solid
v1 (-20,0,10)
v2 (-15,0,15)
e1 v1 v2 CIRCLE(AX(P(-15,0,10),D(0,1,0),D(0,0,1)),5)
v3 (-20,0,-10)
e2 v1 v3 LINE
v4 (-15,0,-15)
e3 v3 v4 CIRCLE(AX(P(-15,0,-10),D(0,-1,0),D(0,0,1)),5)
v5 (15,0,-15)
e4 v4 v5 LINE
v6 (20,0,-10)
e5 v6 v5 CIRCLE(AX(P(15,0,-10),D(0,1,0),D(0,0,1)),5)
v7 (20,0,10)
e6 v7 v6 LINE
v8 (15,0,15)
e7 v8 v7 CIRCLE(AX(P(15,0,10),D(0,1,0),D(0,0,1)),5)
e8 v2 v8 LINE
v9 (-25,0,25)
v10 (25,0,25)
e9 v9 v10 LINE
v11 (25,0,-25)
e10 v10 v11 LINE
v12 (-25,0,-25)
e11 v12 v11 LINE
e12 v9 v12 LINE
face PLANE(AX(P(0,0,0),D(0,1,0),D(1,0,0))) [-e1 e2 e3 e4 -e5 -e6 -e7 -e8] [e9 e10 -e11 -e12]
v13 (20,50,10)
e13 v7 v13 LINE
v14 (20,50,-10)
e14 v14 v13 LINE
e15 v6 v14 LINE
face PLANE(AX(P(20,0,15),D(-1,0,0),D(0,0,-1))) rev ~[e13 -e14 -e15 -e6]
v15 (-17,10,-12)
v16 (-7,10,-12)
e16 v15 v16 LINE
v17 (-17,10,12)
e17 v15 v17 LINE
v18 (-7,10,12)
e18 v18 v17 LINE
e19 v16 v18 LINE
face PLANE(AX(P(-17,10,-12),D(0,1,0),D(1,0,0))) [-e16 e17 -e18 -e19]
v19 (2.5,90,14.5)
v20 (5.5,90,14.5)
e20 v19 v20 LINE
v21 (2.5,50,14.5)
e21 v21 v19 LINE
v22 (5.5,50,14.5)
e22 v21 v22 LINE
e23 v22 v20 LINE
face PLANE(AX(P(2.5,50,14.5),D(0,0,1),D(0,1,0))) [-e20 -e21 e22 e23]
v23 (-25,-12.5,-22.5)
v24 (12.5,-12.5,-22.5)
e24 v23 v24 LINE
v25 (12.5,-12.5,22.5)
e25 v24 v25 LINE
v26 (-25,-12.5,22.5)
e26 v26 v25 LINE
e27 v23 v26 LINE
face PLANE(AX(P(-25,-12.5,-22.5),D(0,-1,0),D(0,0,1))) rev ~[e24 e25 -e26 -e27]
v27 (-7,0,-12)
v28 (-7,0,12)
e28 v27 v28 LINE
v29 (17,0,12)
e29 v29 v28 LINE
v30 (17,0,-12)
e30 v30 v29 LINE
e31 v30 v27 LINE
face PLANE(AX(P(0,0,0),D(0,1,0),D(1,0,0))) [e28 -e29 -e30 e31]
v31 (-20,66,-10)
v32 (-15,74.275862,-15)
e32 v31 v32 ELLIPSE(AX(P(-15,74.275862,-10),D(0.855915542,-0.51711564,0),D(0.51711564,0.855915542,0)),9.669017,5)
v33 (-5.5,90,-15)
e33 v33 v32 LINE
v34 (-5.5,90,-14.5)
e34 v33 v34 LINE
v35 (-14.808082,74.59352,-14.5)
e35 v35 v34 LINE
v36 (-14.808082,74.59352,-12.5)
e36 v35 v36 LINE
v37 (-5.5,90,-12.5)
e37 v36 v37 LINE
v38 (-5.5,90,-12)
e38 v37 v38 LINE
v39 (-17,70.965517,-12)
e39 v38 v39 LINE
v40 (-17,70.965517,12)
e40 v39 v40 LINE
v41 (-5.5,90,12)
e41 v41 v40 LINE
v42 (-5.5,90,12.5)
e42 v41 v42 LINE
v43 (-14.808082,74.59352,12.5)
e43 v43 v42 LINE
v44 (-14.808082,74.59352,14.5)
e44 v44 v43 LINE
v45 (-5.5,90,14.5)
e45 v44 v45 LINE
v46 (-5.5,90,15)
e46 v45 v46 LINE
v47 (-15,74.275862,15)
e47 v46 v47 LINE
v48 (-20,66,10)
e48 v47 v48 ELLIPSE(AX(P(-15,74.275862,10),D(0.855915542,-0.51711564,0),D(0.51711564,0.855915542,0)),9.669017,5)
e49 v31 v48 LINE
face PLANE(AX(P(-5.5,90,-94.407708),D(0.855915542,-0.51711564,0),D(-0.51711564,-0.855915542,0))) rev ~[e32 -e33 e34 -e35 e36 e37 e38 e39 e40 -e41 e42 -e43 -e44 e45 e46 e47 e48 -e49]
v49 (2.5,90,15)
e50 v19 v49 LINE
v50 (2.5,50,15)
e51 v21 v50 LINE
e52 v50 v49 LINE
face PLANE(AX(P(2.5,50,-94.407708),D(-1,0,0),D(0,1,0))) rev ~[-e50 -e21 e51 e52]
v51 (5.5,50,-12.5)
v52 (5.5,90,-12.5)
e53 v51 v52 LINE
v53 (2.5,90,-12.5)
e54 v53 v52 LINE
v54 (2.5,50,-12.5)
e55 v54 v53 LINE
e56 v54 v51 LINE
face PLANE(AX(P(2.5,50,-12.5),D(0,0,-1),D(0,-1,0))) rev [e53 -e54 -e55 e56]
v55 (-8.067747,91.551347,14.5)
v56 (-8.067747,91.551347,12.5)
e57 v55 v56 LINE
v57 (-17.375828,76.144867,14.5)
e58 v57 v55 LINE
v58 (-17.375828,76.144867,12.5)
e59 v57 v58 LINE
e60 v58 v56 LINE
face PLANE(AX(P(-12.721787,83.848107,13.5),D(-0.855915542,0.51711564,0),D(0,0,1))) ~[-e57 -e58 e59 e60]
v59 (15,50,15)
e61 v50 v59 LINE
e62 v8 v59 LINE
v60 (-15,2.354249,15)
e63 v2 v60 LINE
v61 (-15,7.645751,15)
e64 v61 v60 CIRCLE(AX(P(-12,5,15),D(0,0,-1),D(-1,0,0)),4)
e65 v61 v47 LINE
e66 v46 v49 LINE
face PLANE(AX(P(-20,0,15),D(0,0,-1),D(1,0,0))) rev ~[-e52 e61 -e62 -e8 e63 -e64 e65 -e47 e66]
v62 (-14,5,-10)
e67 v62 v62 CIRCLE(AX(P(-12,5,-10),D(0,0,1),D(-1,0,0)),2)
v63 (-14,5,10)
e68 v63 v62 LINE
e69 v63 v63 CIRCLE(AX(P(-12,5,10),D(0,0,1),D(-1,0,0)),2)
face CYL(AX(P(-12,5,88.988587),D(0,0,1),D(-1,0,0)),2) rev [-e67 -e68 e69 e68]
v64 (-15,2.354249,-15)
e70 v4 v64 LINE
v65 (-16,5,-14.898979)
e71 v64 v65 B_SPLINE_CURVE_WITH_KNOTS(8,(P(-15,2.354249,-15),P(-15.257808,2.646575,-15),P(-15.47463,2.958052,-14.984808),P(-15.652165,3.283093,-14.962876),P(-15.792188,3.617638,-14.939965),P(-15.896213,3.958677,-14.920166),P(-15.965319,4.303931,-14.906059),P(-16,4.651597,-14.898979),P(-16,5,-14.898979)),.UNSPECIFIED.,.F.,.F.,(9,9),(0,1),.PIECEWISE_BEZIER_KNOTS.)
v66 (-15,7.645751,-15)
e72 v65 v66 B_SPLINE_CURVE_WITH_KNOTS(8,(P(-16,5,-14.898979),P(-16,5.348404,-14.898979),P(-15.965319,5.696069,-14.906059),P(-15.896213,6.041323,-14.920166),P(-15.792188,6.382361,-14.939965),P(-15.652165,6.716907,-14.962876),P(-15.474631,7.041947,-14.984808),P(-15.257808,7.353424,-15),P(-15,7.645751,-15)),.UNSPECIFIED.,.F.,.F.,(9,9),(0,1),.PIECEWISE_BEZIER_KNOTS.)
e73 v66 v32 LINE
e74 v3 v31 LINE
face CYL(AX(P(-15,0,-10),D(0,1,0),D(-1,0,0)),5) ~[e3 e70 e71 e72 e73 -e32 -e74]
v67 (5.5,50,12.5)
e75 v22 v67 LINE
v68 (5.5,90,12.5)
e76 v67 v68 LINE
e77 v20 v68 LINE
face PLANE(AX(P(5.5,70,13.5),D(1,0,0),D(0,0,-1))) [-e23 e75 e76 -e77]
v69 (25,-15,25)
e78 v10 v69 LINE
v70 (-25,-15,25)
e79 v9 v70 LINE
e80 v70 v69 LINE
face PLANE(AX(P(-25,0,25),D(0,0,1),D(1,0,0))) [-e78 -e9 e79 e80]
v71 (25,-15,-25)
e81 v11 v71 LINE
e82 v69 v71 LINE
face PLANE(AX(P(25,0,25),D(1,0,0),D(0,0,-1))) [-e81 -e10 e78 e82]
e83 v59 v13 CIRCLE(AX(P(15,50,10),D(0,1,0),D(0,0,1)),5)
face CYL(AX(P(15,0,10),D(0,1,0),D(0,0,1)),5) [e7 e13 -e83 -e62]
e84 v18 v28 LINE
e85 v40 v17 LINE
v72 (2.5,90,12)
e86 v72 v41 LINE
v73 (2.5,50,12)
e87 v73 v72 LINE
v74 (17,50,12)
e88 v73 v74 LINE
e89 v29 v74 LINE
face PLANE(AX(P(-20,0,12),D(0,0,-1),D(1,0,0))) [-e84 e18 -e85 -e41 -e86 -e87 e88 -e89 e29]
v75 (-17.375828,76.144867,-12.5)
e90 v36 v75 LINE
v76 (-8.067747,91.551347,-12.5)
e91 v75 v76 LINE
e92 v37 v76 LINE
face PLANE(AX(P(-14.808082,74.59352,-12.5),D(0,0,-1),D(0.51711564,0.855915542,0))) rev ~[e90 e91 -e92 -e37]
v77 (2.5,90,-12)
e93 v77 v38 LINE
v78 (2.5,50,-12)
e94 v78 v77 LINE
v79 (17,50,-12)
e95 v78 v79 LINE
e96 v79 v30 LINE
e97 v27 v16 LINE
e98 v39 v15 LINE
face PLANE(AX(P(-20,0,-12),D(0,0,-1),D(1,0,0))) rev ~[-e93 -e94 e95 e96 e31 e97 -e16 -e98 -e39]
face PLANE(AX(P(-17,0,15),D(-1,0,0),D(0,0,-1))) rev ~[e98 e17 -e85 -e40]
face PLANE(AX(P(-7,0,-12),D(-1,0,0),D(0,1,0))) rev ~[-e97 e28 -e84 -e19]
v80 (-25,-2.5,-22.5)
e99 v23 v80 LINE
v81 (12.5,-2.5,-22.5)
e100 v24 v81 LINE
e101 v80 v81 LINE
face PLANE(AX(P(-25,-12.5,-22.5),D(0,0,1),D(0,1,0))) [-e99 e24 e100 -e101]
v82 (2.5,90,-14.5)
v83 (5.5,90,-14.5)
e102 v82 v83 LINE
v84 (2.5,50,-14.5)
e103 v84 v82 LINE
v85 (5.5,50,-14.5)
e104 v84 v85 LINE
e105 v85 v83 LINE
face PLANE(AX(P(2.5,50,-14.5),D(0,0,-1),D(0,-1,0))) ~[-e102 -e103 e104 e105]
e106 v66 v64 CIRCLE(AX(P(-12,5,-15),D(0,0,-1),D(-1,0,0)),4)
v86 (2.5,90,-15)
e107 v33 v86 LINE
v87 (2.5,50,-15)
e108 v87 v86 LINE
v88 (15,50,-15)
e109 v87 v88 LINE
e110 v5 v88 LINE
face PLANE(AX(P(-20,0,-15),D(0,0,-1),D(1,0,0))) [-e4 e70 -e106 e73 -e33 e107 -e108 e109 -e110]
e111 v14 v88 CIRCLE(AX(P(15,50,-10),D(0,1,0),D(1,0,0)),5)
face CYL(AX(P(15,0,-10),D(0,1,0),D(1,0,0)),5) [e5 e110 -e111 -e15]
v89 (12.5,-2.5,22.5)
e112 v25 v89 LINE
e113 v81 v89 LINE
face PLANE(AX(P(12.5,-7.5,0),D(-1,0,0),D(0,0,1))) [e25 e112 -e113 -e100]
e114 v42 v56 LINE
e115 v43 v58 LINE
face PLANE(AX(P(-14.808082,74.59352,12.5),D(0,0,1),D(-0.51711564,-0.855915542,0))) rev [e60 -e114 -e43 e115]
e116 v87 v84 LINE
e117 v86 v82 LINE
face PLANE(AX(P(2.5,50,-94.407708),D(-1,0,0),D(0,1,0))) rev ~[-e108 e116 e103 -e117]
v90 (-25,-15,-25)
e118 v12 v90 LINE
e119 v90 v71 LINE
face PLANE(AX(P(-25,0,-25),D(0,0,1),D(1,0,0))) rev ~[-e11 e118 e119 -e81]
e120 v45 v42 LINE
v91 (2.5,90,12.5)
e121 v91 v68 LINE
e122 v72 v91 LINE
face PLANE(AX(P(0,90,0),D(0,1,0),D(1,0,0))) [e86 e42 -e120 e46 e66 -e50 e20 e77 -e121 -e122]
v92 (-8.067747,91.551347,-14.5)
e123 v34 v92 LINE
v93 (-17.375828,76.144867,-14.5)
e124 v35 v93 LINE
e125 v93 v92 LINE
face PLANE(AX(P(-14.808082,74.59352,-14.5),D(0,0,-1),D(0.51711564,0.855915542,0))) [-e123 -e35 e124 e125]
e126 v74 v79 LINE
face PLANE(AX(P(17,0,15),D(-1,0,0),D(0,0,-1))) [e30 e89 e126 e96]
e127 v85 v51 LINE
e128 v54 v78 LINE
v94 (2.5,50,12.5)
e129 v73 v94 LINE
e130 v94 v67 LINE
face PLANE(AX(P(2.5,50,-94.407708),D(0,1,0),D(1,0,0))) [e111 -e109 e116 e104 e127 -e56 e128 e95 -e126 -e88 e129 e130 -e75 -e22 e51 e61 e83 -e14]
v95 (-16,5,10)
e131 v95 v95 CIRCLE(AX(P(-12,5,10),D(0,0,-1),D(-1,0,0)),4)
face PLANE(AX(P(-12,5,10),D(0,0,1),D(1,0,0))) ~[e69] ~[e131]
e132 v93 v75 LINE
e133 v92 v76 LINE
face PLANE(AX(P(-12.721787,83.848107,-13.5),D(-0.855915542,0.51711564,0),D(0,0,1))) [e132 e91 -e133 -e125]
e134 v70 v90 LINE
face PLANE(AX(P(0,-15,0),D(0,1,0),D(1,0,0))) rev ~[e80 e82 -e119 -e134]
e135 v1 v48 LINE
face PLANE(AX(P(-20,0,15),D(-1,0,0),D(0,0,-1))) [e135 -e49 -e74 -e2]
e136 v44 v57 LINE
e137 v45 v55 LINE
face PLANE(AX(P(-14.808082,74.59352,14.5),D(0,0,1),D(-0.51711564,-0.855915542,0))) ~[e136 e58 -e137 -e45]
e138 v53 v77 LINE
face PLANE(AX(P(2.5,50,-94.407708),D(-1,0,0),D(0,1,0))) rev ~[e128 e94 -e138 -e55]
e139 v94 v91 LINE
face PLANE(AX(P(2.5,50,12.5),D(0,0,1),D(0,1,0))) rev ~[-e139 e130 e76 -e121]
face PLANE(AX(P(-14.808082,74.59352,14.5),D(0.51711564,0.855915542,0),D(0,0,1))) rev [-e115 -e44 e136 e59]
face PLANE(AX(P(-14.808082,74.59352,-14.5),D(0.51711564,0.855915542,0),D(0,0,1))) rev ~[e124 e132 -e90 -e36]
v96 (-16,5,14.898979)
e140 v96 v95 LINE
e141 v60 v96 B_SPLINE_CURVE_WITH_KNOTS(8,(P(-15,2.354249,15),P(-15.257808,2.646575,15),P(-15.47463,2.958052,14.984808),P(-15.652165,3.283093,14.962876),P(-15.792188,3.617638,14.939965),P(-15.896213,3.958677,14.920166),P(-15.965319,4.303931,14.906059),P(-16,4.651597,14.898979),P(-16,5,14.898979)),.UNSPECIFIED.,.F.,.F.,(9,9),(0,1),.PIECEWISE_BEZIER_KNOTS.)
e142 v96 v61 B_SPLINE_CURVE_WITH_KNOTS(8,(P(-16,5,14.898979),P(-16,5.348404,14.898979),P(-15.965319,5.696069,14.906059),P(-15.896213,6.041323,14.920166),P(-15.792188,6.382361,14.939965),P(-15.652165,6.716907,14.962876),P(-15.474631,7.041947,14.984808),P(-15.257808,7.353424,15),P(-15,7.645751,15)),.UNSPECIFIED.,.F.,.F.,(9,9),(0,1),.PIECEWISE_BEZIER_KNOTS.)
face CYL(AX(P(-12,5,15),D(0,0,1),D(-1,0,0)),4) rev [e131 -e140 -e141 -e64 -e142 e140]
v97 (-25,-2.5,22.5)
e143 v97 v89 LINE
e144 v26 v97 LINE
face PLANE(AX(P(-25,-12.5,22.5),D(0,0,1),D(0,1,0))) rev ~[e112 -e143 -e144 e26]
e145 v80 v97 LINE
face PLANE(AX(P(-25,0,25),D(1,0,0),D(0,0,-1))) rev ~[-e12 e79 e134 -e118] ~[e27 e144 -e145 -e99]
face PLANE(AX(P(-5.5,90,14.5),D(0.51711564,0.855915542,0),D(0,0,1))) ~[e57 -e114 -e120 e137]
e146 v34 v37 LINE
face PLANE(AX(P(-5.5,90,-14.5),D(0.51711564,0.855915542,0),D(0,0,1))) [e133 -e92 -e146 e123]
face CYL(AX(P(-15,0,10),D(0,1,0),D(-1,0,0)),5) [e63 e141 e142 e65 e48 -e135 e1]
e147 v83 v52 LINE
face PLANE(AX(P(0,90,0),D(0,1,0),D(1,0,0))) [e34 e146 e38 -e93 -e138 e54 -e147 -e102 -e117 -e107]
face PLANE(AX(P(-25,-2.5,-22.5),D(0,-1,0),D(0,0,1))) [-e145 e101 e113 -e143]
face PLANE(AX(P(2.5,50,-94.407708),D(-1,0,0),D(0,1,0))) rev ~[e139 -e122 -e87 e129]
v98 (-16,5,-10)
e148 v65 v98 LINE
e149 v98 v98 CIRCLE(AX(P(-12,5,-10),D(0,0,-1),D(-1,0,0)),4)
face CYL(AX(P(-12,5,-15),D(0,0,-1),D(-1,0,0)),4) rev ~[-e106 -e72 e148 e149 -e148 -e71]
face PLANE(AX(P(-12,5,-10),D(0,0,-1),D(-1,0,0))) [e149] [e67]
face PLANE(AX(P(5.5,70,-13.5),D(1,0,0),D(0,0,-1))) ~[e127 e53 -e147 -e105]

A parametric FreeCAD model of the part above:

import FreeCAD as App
import Part
import Sketcher

V = App.Vector
Q = App.Units.Quantity


def edges_at(feature, points):
    """Names of the edges that pass closest to the given points."""
    edges = feature.Shape.Edges
    near = lambda p: min(range(len(edges)), key=lambda i: edges[i].distToShape(Part.Vertex(*p))[0])
    return sorted({f"Edge{near(p) + 1}" for p in points})


def faces_at(feature, points):
    """Names of the faces that lie closest to the given points."""
    faces = feature.Shape.Faces
    near = lambda p: min(range(len(faces)), key=lambda i: faces[i].distToShape(Part.Vertex(*p))[0])
    return sorted({f"Face{near(p) + 1}" for p in points})


def add_polygon(sketch, points):
    """Adds a closed chain of lines whose ends are joined by coincident constraints."""
    first, n = sketch.GeometryCount, len(points)
    for a, b in zip(points, points[1:] + points[:1]):
        sketch.addGeometry(Part.LineSegment(App.Vector(*a, 0), App.Vector(*b, 0)), False)
    for i in range(n):
        sketch.addConstraint(Sketcher.Constraint("Coincident", first + i, 2, first + (i + 1) % n, 1))

doc = App.newDocument("Part")
params = doc.addObject("Spreadsheet::Sheet", "Params")
for row, (alias, value) in enumerate([
    ("sketch1_width", "40 mm"),
    ("sketch1_height", "30 mm"),
    ("pad1_length", "90 mm"),
    ("thickness_wall", "3 mm"),
    ("fillet_radius", "5 mm"),
    ("sketch2_height", "24 mm"),
    ("sketch2_width", "14.5 mm"),
    ("sketch3_height", "40 mm"),
    ("sketch3_width", "17.5 mm"),
    ("sketch4_width", "40 mm"),
    ("sketch4_height", "2 mm"),
    ("pad2_length", "3 mm"),
    ("sketch5_width", "2 mm"),
    ("sketch5_height", "18 mm"),
    ("pad3_length", "3 mm"),
    ("sketch6_width", "50 mm"),
    ("pad4_length", "15 mm"),
    ("sketch7_width", "10 mm"),
    ("sketch7_height", "45 mm"),
    ("pocket3_length", "37.5 mm"),
    ("sketch8_width", "10 mm"),
    ("sketch9_diameter", "4 mm"),
    ("sketch10_diameter", "8 mm"),
    ("pocket5_length", "5 mm"),
], start=1):
    params.set(f"A{row}", alias)
    params.set(f"B{row}", "=" + value)
    params.setAlias(f"B{row}", alias)

body = doc.addObject("PartDesign::Body", "Body")

# Sketch on XZ plane
sketch1 = body.newObject("Sketcher::SketchObject", "Sketch")
sketch1.AttachmentSupport = (doc.getObject("XZ_Plane"), [""])
sketch1.MapMode = "FlatFace"
add_polygon(sketch1, [(-20, -15), (-20, 15), (20, 15), (20, -15)])  # lines 0-3
sketch1.addConstraint([
    Sketcher.Constraint("Vertical", 0),
    Sketcher.Constraint("Horizontal", 1),
    Sketcher.Constraint("Vertical", 2),
    Sketcher.Constraint("Horizontal", 3),
    Sketcher.Constraint("Symmetric", 0, 2, 2, 2, -1, 1),
    Sketcher.Constraint("DistanceX", 1, 1, 1, 2, Q("40 mm")),
    Sketcher.Constraint("DistanceY", 0, 1, 0, 2, Q("30 mm")),
])
sketch1.setExpression("Constraints[9]", "Params.sketch1_width")
sketch1.setExpression("Constraints[10]", "Params.sketch1_height")
pad1 = body.newObject("PartDesign::Pad", "Pad")
pad1.Profile = sketch1
pad1.setExpression("Length", "Params.pad1_length")
pad1.Reversed = True
doc.recompute()

thickness = body.newObject("PartDesign::Thickness", "Thickness")
thickness.Base = (pad1, faces_at(pad1, [(0, 90, 0), (0, 0, 0)]))
thickness.setExpression("Value", "Params.thickness_wall")
thickness.Reversed = True
thickness.Join = "Intersection"
doc.recompute()

fillet = body.newObject("PartDesign::Fillet", "Fillet")
fillet.Base = (thickness, edges_at(thickness, [
    (20, 45, 15),
    (-20, 45, 15),
    (-20, 45, -15),
    (20, 45, -15),
]))
fillet.setExpression("Radius", "Params.fillet_radius")

# Sketch on XY plane
sketch2 = body.newObject("Sketcher::SketchObject", "Sketch001")
sketch2.AttachmentSupport = (doc.getObject("XY_Plane"), [""])
sketch2.MapMode = "FlatFace"
add_polygon(sketch2, [(-20, 66), (-6, 90), (-20, 90)])  # lines 0-2
sketch2.addConstraint([
    Sketcher.Constraint("Horizontal", 1),
    Sketcher.Constraint("Vertical", 2),
    Sketcher.Constraint("DistanceY", 2, 2, 2, 1, Q("24 mm")),
    Sketcher.Constraint("DistanceX", 1, 2, 1, 1, Q("14.5 mm")),
    Sketcher.Constraint("DistanceY", -1, 1, 0, 2, Q("90 mm")),
    Sketcher.Constraint("DistanceX", 1, 2, -1, 1, Q("20 mm")),
])
sketch2.setExpression("Constraints[5]", "Params.sketch2_height")
sketch2.setExpression("Constraints[6]", "Params.sketch2_width")
pocket1 = body.newObject("PartDesign::Pocket", "Pocket")
pocket1.Profile = sketch2
pocket1.Type = "ThroughAll"
pocket1.Midplane = True

# Sketch on XY plane
sketch3 = body.newObject("Sketcher::SketchObject", "Sketch002")
sketch3.AttachmentSupport = (doc.getObject("XY_Plane"), [""])
sketch3.MapMode = "FlatFace"
add_polygon(sketch3, [(2, 90), (2, 50), (20, 50), (20, 90)])  # lines 0-3
sketch3.addConstraint([
    Sketcher.Constraint("Vertical", 0),
    Sketcher.Constraint("Horizontal", 1),
    Sketcher.Constraint("Vertical", 2),
    Sketcher.Constraint("Horizontal", 3),
    Sketcher.Constraint("DistanceY", 0, 2, 0, 1, Q("40 mm")),
    Sketcher.Constraint("DistanceX", 1, 1, 1, 2, Q("17.5 mm")),
    Sketcher.Constraint("DistanceY", -1, 1, 0, 2, Q("50 mm")),
    Sketcher.Constraint("DistanceX", -1, 1, 1, 2, Q("20 mm")),
])
sketch3.setExpression("Constraints[8]", "Params.sketch3_height")
sketch3.setExpression("Constraints[9]", "Params.sketch3_width")
pocket2 = body.newObject("PartDesign::Pocket", "Pocket001")
pocket2.Profile = sketch3
pocket2.Type = "ThroughAll"
pocket2.Midplane = True

# Sketch on YZ plane
sketch4 = body.newObject("Sketcher::SketchObject", "Sketch003")
sketch4.AttachmentSupport = (doc.getObject("YZ_Plane"), [""])
sketch4.MapMode = "FlatFace"
sketch4.AttachmentOffset = App.Placement(V(0, 0, 2.5), App.Rotation())
add_polygon(sketch4, [(90, 14.5), (50, 14.5), (50, 12.5), (90, 12.5)])  # lines 0-3
sketch4.addConstraint([
    Sketcher.Constraint("Horizontal", 0),
    Sketcher.Constraint("Vertical", 1),
    Sketcher.Constraint("Horizontal", 2),
    Sketcher.Constraint("Vertical", 3),
    Sketcher.Constraint("DistanceX", 0, 2, 0, 1, Q("40 mm")),
    Sketcher.Constraint("DistanceY", 1, 2, 1, 1, Q("2 mm")),
    Sketcher.Constraint("DistanceX", -1, 1, 0, 2, Q("50 mm")),
    Sketcher.Constraint("DistanceY", -1, 1, 0, 2, Q("14.5 mm")),
])
sketch4.setExpression("Constraints[8]", "Params.sketch4_width")
sketch4.setExpression("Constraints[9]", "Params.sketch4_height")
pad2 = body.newObject("PartDesign::Pad", "Pad001")
pad2.Profile = sketch4
pad2.setExpression("Length", "Params.pad2_length")
doc.recompute()

mirrored = body.newObject("PartDesign::Mirrored", "Mirrored")
mirrored.Originals = [pad2]
mirrored.MirrorPlane = (doc.getObject("XY_Plane"), [""])
body.Tip = mirrored

# Sketch on an angled plane
sketch5 = body.newObject("Sketcher::SketchObject", "Sketch004")
sketch5.Placement = App.Placement(V(-43.863911, 26.501113, 0), App.Rotation(V(0, 0, 1), V(0.51711564, 0.855915542, 0), V(-0.855915542, 0.51711564, 0), "ZXY"))
add_polygon(sketch5, [(-14.5, 74.2), (-14.5, 56.2), (-12.5, 56.2), (-12.5, 74.2)])  # lines 0-3
sketch5.addConstraint([
    Sketcher.Constraint("Vertical", 0),
    Sketcher.Constraint("Horizontal", 1),
    Sketcher.Constraint("Vertical", 2),
    Sketcher.Constraint("Horizontal", 3),
    Sketcher.Constraint("DistanceX", 1, 1, 1, 2, Q("2 mm")),
    Sketcher.Constraint("DistanceY", 0, 2, 0, 1, Q("18 mm")),
    Sketcher.Constraint("DistanceX", 0, 2, -1, 1, Q("14.5 mm")),
    Sketcher.Constraint("DistanceY", -1, 1, 0, 2, Q("56.188263 mm")),
])
sketch5.setExpression("Constraints[8]", "Params.sketch5_width")
sketch5.setExpression("Constraints[9]", "Params.sketch5_height")
pad3 = body.newObject("PartDesign::Pad", "Pad002")
pad3.Profile = sketch5
pad3.setExpression("Length", "Params.pad3_length")
doc.recompute()

mirrored2 = body.newObject("PartDesign::Mirrored", "Mirrored001")
mirrored2.Originals = [pad3]
mirrored2.MirrorPlane = (doc.getObject("XY_Plane"), [""])
body.Tip = mirrored2

# Sketch on XZ plane
sketch6 = body.newObject("Sketcher::SketchObject", "Sketch005")
sketch6.AttachmentSupport = (doc.getObject("XZ_Plane"), [""])
sketch6.MapMode = "FlatFace"
add_polygon(sketch6, [(-25, -25), (-25, 25), (25, 25), (25, -25)])  # lines 0-3
sketch6.addConstraint([
    Sketcher.Constraint("Vertical", 0),
    Sketcher.Constraint("Horizontal", 1),
    Sketcher.Constraint("Vertical", 2),
    Sketcher.Constraint("Horizontal", 3),
    Sketcher.Constraint("Symmetric", 0, 2, 2, 2, -1, 1),
    Sketcher.Constraint("Equal", 3, 0),
    Sketcher.Constraint("DistanceX", 1, 1, 1, 2, Q("50 mm")),
])
sketch6.setExpression("Constraints[10]", "Params.sketch6_width")
pad4 = body.newObject("PartDesign::Pad", "Pad003")
pad4.Profile = sketch6
pad4.setExpression("Length", "Params.pad4_length")

# Sketch on YZ plane
sketch7 = body.newObject("Sketcher::SketchObject", "Sketch006")
sketch7.AttachmentSupport = (doc.getObject("YZ_Plane"), [""])
sketch7.MapMode = "FlatFace"
sketch7.AttachmentOffset = App.Placement(V(0, 0, -25), App.Rotation())
add_polygon(sketch7, [(-2, -22), (-12, -22), (-12, 22), (-2, 22)])  # lines 0-3
sketch7.addConstraint([
    Sketcher.Constraint("Horizontal", 0),
    Sketcher.Constraint("Vertical", 1),
    Sketcher.Constraint("Horizontal", 2),
    Sketcher.Constraint("Vertical", 3),
    Sketcher.Constraint("DistanceX", 0, 2, 0, 1, Q("10 mm")),
    Sketcher.Constraint("DistanceY", 1, 1, 1, 2, Q("45 mm")),
    Sketcher.Constraint("DistanceX", 0, 2, -1, 1, Q("12.5 mm")),
    Sketcher.Constraint("DistanceY", 0, 2, -1, 1, Q("22.5 mm")),
])
sketch7.setExpression("Constraints[8]", "Params.sketch7_width")
sketch7.setExpression("Constraints[9]", "Params.sketch7_height")
pocket3 = body.newObject("PartDesign::Pocket", "Pocket002")
pocket3.Profile = sketch7
pocket3.setExpression("Length", "Params.pocket3_length")
pocket3.Reversed = True

# Sketch on XY plane
sketch8 = body.newObject("Sketcher::SketchObject", "Sketch007")
sketch8.AttachmentSupport = (doc.getObject("XY_Plane"), [""])
sketch8.MapMode = "FlatFace"
sketch8.AttachmentOffset = App.Placement(V(0, 0, -12), App.Rotation())
add_polygon(sketch8, [(-17, 10), (-17, 0), (-7, 0), (-7, 10)])  # lines 0-3
sketch8.addConstraint([
    Sketcher.Constraint("Vertical", 0),
    Sketcher.Constraint("Horizontal", 1),
    Sketcher.Constraint("Vertical", 2),
    Sketcher.Constraint("Horizontal", 3),
    Sketcher.Constraint("PointOnObject", 0, 2, -1),
    Sketcher.Constraint("Equal", 3, 0),
    Sketcher.Constraint("DistanceX", 1, 1, 1, 2, Q("10 mm")),
    Sketcher.Constraint("DistanceX", 0, 2, -1, 1, Q("17 mm")),
])
sketch8.setExpression("Constraints[10]", "Params.sketch8_width")
pad5 = body.newObject("PartDesign::Pad", "Pad004")
pad5.Profile = sketch8
pad5.Type = "UpToFirst"

# Sketch on XY plane
sketch9 = body.newObject("Sketcher::SketchObject", "Sketch008")
sketch9.AttachmentSupport = (doc.getObject("XY_Plane"), [""])
sketch9.MapMode = "FlatFace"
sketch9.AttachmentOffset = App.Placement(V(0, 0, -15), App.Rotation())
sketch9.addGeometry(Part.Circle(V(-12, 5, 0), V(0, 0, 1), 2), False)
sketch9.addConstraint([
    Sketcher.Constraint("Diameter", 0, Q("4 mm")),
    Sketcher.Constraint("DistanceX", 0, 3, -1, 1, Q("12 mm")),
    Sketcher.Constraint("DistanceY", -1, 1, 0, 3, Q("5 mm")),
])
sketch9.setExpression("Constraints[0]", "Params.sketch9_diameter")
pocket4 = body.newObject("PartDesign::Pocket", "Pocket003")
pocket4.Profile = sketch9
pocket4.Type = "ThroughAll"
pocket4.Midplane = True

# Sketch on XY plane
sketch10 = body.newObject("Sketcher::SketchObject", "Sketch009")
sketch10.AttachmentSupport = (doc.getObject("XY_Plane"), [""])
sketch10.MapMode = "FlatFace"
sketch10.AttachmentOffset = App.Placement(V(0, 0, -15), App.Rotation())
sketch10.addGeometry(Part.Circle(V(-12, 5, 0), V(0, 0, 1), 4), False)
sketch10.addConstraint([
    Sketcher.Constraint("Diameter", 0, Q("8 mm")),
    Sketcher.Constraint("DistanceX", 0, 3, -1, 1, Q("12 mm")),
    Sketcher.Constraint("DistanceY", -1, 1, 0, 3, Q("5 mm")),
])
sketch10.setExpression("Constraints[0]", "Params.sketch10_diameter")
pocket5 = body.newObject("PartDesign::Pocket", "Pocket004")
pocket5.Profile = sketch10
pocket5.setExpression("Length", "Params.pocket5_length")
pocket5.Reversed = True
doc.recompute()

mirrored3 = body.newObject("PartDesign::Mirrored", "Mirrored002")
mirrored3.Originals = [pocket5]
mirrored3.MirrorPlane = (doc.getObject("XY_Plane"), [""])
body.Tip = mirrored3

doc.recompute()
